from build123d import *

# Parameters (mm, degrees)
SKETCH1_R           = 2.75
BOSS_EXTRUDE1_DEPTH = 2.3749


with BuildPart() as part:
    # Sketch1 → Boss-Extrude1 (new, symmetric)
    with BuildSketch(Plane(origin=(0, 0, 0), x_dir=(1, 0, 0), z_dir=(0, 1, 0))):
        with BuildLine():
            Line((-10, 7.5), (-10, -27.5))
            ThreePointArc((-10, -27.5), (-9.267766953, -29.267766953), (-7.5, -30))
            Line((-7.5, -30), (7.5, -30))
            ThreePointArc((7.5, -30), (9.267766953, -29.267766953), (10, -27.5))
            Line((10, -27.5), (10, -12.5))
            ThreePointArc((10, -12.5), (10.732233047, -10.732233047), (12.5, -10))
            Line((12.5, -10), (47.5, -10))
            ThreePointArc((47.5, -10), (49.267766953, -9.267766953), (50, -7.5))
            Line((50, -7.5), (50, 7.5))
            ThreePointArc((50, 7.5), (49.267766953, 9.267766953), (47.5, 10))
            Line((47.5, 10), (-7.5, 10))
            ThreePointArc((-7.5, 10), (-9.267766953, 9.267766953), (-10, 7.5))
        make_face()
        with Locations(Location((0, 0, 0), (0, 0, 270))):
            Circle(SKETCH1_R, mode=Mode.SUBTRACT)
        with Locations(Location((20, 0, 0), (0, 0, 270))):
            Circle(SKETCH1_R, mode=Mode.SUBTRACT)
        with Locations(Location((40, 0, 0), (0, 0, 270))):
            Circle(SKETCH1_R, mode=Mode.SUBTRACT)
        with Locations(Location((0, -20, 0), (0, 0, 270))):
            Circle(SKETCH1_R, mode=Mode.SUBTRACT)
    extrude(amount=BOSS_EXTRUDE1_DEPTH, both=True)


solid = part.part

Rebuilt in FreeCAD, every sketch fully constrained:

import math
import FreeCAD as App
import Part
import Sketcher
Q = App.Units.Quantity

doc = App.newDocument("Part")
body = doc.addObject("PartDesign::Body", "Body")

# Sketch on XZ plane
sketch1 = body.newObject("Sketcher::SketchObject", "Sketch")
sketch1.AttachmentSupport = (doc.getObject("XZ_Plane"), [""])
sketch1.MapMode = "FlatFace"
sketch1.addGeometry(Part.LineSegment(App.Vector(-10, -7.5, 0), App.Vector(-10, 27.5, 0)), False)
sketch1.addGeometry(Part.ArcOfCircle(Part.Circle(App.Vector(-7.5, 27.5, 0), App.Vector(0, 0, 1), 2.5), math.radians(90), math.radians(180)), False)
sketch1.addGeometry(Part.LineSegment(App.Vector(-7.5, 30, 0), App.Vector(7.5, 30, 0)), False)
sketch1.addGeometry(Part.ArcOfCircle(Part.Circle(App.Vector(7.5, 27.5, 0), App.Vector(0, 0, 1), 2.5), math.radians(0), math.radians(90)), False)
sketch1.addGeometry(Part.LineSegment(App.Vector(10, 27.5, 0), App.Vector(10, 12.5, 0)), False)
sketch1.addGeometry(Part.ArcOfCircle(Part.Circle(App.Vector(12.5, 12.5, 0), App.Vector(0, 0, 1), 2.5), math.radians(180), math.radians(270)), False)
sketch1.addGeometry(Part.LineSegment(App.Vector(12.5, 10, 0), App.Vector(47.5, 10, 0)), False)
sketch1.addGeometry(Part.ArcOfCircle(Part.Circle(App.Vector(47.5, 7.5, 0), App.Vector(0, 0, 1), 2.5), math.radians(0), math.radians(90)), False)
sketch1.addGeometry(Part.LineSegment(App.Vector(50, 7.5, 0), App.Vector(50, -7.5, 0)), False)
sketch1.addGeometry(Part.ArcOfCircle(Part.Circle(App.Vector(47.5, -7.5, 0), App.Vector(0, 0, 1), 2.5), math.radians(-90), math.radians(0)), False)
sketch1.addGeometry(Part.LineSegment(App.Vector(47.5, -10, 0), App.Vector(-7.5, -10, 0)), False)
sketch1.addGeometry(Part.ArcOfCircle(Part.Circle(App.Vector(-7.5, -7.5, 0), App.Vector(0, 0, 1), 2.5), math.radians(180), math.radians(270)), False)
sketch1.addGeometry(Part.Circle(App.Vector(0, 20, 0), App.Vector(0, 0, 1), 2.8), False)
sketch1.addGeometry(Part.Circle(App.Vector(0, 0, 0), App.Vector(0, 0, 1), 2.8), False)
sketch1.addGeometry(Part.Circle(App.Vector(20, 0, 0), App.Vector(0, 0, 1), 2.8), False)
sketch1.addGeometry(Part.Circle(App.Vector(40, 0, 0), App.Vector(0, 0, 1), 2.8), False)
sketch1.addConstraint(Sketcher.Constraint("Tangent", 0, 2, 1, 2))
sketch1.addConstraint(Sketcher.Constraint("Tangent", 1, 1, 2, 1))
sketch1.addConstraint(Sketcher.Constraint("Tangent", 2, 2, 3, 2))
sketch1.addConstraint(Sketcher.Constraint("Tangent", 3, 1, 4, 1))
sketch1.addConstraint(Sketcher.Constraint("Tangent", 4, 2, 5, 1))
sketch1.addConstraint(Sketcher.Constraint("Tangent", 5, 2, 6, 1))
sketch1.addConstraint(Sketcher.Constraint("Tangent", 6, 2, 7, 2))
sketch1.addConstraint(Sketcher.Constraint("Tangent", 7, 1, 8, 1))
sketch1.addConstraint(Sketcher.Constraint("Tangent", 8, 2, 9, 2))
sketch1.addConstraint(Sketcher.Constraint("Tangent", 9, 1, 10, 1))
sketch1.addConstraint(Sketcher.Constraint("Tangent", 10, 2, 11, 2))
sketch1.addConstraint(Sketcher.Constraint("Tangent", 11, 1, 0, 1))
sketch1.addConstraint(Sketcher.Constraint("Vertical", 0))
sketch1.addConstraint(Sketcher.Constraint("Horizontal", 2))
sketch1.addConstraint(Sketcher.Constraint("Vertical", 4))
sketch1.addConstraint(Sketcher.Constraint("Horizontal", 6))
sketch1.addConstraint(Sketcher.Constraint("Vertical", 8))
sketch1.addConstraint(Sketcher.Constraint("Horizontal", 10))
sketch1.addConstraint(Sketcher.Constraint("Coincident", 13, 3, -1, 1))
sketch1.addConstraint(Sketcher.Constraint("Equal", 1, 3))
sketch1.addConstraint(Sketcher.Constraint("Equal", 3, 5))
sketch1.addConstraint(Sketcher.Constraint("Equal", 5, 7))
sketch1.addConstraint(Sketcher.Constraint("Equal", 7, 9))
sketch1.addConstraint(Sketcher.Constraint("Equal", 9, 11))
sketch1.addConstraint(Sketcher.Constraint("Equal", 12, 13))
sketch1.addConstraint(Sketcher.Constraint("Equal", 13, 14))
sketch1.addConstraint(Sketcher.Constraint("Equal", 14, 15))
sketch1.addConstraint(Sketcher.Constraint("PointOnObject", 12, 3, -2))
sketch1.addConstraint(Sketcher.Constraint("PointOnObject", 14, 3, -1))
sketch1.addConstraint(Sketcher.Constraint("PointOnObject", 15, 3, -1))
sketch1.addConstraint(Sketcher.Constraint("Equal", 6, 0))
sketch1.addConstraint(Sketcher.Constraint("Equal", 2, 4))
sketch1.addConstraint(Sketcher.Constraint("Equal", 4, 8))
sketch1.addConstraint(Sketcher.Constraint("Diameter", 12, Q("5.5 mm")))
sketch1.addConstraint(Sketcher.Constraint("Radius", 1, Q("2.5 mm")))
sketch1.addConstraint(Sketcher.Constraint("DistanceX", 2, 1, 2, 2, Q("15 mm")))
sketch1.addConstraint(Sketcher.Constraint("DistanceY", -1, 1, 12, 3, Q("20 mm")))
sketch1.addConstraint(Sketcher.Constraint("DistanceX", -1, 1, 14, 3, Q("20 mm")))
sketch1.addConstraint(Sketcher.Constraint("DistanceX", -1, 1, 15, 3, Q("40 mm")))
sketch1.addConstraint(Sketcher.Constraint("DistanceX", 0, 2, -1, 1, Q("10 mm")))
sketch1.addConstraint(Sketcher.Constraint("DistanceY", -1, 1, 1, 1, Q("30 mm")))
pad1 = body.newObject("PartDesign::Pad", "Pad")
pad1.Profile = sketch1
pad1.Length = 4.7498
pad1.Midplane = True

doc.recompute()
